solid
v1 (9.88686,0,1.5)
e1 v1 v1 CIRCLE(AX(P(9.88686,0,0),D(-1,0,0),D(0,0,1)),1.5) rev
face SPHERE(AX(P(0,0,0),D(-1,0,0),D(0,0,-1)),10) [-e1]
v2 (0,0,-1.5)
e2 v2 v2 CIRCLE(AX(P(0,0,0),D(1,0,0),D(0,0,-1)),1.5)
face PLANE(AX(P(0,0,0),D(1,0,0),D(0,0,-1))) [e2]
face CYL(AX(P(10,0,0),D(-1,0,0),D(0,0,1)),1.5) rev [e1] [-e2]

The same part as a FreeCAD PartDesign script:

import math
import FreeCAD as App
import Part
import Sketcher
from FreeCAD import Vector

doc = App.newDocument("Part")
body = doc.addObject("PartDesign::Body", "Body")

# Sketch on XZ plane
sketch1 = body.newObject("Sketcher::SketchObject", "Sketch")
sketch1.AttachmentSupport = (doc.getObject("XZ_Plane"), [""])
sketch1.MapMode = "FlatFace"
sketch1.addGeometry([
    Part.LineSegment(Vector(0, 0, 0), Vector(10, 0, 0)),
    Part.ArcOfCircle(Part.Circle(Vector(0, 0, 0), Vector(0, 0, 1), 10), math.radians(-90), math.radians(0)),
    Part.LineSegment(Vector(0, -10, 0), Vector(0, 0, 0)),
], False)
sketch1.addConstraint([
    Sketcher.Constraint("Coincident", 0, 2, 1, 2),
    Sketcher.Constraint("Coincident", 1, 1, 2, 1),
    Sketcher.Constraint("Coincident", 2, 2, 0, 1),
    Sketcher.Constraint("Horizontal", 0),
    Sketcher.Constraint("Vertical", 2),
    Sketcher.Constraint("Coincident", 1, 3, -1, 1),
    Sketcher.Constraint("Coincident", 2, 2, -1, 1),
    Sketcher.Constraint("Radius", 1, 10.0),
])
revolution = body.newObject("PartDesign::Revolution", "Revolution")
revolution.Profile = sketch1
revolution.ReferenceAxis = (sketch1, ["H_Axis"])
revolution.Angle = 360
doc.recompute()

mirrored = body.newObject("PartDesign::Mirrored", "Mirrored")
mirrored.Originals = [revolution]
mirrored.MirrorPlane = (doc.getObject("YZ_Plane"), [""])
body.Tip = mirrored

# Sketch on YZ plane
sketch2 = body.newObject("Sketcher::SketchObject", "Sketch001")
sketch2.AttachmentSupport = (doc.getObject("YZ_Plane"), [""])
sketch2.MapMode = "FlatFace"
sketch2.addGeometry(Part.Circle(Vector(0, 0, 0), Vector(0, 0, 1), 1.5), False)
sketch2.addConstraint([
    Sketcher.Constraint("Coincident", 0, 3, -1, 1),
    Sketcher.Constraint("Diameter", 0, 3.0),
])
pocket1 = body.newObject("PartDesign::Pocket", "Pocket")
pocket1.Profile = sketch2
pocket1.Length = 10
pocket1.Reversed = True

doc.recompute()
